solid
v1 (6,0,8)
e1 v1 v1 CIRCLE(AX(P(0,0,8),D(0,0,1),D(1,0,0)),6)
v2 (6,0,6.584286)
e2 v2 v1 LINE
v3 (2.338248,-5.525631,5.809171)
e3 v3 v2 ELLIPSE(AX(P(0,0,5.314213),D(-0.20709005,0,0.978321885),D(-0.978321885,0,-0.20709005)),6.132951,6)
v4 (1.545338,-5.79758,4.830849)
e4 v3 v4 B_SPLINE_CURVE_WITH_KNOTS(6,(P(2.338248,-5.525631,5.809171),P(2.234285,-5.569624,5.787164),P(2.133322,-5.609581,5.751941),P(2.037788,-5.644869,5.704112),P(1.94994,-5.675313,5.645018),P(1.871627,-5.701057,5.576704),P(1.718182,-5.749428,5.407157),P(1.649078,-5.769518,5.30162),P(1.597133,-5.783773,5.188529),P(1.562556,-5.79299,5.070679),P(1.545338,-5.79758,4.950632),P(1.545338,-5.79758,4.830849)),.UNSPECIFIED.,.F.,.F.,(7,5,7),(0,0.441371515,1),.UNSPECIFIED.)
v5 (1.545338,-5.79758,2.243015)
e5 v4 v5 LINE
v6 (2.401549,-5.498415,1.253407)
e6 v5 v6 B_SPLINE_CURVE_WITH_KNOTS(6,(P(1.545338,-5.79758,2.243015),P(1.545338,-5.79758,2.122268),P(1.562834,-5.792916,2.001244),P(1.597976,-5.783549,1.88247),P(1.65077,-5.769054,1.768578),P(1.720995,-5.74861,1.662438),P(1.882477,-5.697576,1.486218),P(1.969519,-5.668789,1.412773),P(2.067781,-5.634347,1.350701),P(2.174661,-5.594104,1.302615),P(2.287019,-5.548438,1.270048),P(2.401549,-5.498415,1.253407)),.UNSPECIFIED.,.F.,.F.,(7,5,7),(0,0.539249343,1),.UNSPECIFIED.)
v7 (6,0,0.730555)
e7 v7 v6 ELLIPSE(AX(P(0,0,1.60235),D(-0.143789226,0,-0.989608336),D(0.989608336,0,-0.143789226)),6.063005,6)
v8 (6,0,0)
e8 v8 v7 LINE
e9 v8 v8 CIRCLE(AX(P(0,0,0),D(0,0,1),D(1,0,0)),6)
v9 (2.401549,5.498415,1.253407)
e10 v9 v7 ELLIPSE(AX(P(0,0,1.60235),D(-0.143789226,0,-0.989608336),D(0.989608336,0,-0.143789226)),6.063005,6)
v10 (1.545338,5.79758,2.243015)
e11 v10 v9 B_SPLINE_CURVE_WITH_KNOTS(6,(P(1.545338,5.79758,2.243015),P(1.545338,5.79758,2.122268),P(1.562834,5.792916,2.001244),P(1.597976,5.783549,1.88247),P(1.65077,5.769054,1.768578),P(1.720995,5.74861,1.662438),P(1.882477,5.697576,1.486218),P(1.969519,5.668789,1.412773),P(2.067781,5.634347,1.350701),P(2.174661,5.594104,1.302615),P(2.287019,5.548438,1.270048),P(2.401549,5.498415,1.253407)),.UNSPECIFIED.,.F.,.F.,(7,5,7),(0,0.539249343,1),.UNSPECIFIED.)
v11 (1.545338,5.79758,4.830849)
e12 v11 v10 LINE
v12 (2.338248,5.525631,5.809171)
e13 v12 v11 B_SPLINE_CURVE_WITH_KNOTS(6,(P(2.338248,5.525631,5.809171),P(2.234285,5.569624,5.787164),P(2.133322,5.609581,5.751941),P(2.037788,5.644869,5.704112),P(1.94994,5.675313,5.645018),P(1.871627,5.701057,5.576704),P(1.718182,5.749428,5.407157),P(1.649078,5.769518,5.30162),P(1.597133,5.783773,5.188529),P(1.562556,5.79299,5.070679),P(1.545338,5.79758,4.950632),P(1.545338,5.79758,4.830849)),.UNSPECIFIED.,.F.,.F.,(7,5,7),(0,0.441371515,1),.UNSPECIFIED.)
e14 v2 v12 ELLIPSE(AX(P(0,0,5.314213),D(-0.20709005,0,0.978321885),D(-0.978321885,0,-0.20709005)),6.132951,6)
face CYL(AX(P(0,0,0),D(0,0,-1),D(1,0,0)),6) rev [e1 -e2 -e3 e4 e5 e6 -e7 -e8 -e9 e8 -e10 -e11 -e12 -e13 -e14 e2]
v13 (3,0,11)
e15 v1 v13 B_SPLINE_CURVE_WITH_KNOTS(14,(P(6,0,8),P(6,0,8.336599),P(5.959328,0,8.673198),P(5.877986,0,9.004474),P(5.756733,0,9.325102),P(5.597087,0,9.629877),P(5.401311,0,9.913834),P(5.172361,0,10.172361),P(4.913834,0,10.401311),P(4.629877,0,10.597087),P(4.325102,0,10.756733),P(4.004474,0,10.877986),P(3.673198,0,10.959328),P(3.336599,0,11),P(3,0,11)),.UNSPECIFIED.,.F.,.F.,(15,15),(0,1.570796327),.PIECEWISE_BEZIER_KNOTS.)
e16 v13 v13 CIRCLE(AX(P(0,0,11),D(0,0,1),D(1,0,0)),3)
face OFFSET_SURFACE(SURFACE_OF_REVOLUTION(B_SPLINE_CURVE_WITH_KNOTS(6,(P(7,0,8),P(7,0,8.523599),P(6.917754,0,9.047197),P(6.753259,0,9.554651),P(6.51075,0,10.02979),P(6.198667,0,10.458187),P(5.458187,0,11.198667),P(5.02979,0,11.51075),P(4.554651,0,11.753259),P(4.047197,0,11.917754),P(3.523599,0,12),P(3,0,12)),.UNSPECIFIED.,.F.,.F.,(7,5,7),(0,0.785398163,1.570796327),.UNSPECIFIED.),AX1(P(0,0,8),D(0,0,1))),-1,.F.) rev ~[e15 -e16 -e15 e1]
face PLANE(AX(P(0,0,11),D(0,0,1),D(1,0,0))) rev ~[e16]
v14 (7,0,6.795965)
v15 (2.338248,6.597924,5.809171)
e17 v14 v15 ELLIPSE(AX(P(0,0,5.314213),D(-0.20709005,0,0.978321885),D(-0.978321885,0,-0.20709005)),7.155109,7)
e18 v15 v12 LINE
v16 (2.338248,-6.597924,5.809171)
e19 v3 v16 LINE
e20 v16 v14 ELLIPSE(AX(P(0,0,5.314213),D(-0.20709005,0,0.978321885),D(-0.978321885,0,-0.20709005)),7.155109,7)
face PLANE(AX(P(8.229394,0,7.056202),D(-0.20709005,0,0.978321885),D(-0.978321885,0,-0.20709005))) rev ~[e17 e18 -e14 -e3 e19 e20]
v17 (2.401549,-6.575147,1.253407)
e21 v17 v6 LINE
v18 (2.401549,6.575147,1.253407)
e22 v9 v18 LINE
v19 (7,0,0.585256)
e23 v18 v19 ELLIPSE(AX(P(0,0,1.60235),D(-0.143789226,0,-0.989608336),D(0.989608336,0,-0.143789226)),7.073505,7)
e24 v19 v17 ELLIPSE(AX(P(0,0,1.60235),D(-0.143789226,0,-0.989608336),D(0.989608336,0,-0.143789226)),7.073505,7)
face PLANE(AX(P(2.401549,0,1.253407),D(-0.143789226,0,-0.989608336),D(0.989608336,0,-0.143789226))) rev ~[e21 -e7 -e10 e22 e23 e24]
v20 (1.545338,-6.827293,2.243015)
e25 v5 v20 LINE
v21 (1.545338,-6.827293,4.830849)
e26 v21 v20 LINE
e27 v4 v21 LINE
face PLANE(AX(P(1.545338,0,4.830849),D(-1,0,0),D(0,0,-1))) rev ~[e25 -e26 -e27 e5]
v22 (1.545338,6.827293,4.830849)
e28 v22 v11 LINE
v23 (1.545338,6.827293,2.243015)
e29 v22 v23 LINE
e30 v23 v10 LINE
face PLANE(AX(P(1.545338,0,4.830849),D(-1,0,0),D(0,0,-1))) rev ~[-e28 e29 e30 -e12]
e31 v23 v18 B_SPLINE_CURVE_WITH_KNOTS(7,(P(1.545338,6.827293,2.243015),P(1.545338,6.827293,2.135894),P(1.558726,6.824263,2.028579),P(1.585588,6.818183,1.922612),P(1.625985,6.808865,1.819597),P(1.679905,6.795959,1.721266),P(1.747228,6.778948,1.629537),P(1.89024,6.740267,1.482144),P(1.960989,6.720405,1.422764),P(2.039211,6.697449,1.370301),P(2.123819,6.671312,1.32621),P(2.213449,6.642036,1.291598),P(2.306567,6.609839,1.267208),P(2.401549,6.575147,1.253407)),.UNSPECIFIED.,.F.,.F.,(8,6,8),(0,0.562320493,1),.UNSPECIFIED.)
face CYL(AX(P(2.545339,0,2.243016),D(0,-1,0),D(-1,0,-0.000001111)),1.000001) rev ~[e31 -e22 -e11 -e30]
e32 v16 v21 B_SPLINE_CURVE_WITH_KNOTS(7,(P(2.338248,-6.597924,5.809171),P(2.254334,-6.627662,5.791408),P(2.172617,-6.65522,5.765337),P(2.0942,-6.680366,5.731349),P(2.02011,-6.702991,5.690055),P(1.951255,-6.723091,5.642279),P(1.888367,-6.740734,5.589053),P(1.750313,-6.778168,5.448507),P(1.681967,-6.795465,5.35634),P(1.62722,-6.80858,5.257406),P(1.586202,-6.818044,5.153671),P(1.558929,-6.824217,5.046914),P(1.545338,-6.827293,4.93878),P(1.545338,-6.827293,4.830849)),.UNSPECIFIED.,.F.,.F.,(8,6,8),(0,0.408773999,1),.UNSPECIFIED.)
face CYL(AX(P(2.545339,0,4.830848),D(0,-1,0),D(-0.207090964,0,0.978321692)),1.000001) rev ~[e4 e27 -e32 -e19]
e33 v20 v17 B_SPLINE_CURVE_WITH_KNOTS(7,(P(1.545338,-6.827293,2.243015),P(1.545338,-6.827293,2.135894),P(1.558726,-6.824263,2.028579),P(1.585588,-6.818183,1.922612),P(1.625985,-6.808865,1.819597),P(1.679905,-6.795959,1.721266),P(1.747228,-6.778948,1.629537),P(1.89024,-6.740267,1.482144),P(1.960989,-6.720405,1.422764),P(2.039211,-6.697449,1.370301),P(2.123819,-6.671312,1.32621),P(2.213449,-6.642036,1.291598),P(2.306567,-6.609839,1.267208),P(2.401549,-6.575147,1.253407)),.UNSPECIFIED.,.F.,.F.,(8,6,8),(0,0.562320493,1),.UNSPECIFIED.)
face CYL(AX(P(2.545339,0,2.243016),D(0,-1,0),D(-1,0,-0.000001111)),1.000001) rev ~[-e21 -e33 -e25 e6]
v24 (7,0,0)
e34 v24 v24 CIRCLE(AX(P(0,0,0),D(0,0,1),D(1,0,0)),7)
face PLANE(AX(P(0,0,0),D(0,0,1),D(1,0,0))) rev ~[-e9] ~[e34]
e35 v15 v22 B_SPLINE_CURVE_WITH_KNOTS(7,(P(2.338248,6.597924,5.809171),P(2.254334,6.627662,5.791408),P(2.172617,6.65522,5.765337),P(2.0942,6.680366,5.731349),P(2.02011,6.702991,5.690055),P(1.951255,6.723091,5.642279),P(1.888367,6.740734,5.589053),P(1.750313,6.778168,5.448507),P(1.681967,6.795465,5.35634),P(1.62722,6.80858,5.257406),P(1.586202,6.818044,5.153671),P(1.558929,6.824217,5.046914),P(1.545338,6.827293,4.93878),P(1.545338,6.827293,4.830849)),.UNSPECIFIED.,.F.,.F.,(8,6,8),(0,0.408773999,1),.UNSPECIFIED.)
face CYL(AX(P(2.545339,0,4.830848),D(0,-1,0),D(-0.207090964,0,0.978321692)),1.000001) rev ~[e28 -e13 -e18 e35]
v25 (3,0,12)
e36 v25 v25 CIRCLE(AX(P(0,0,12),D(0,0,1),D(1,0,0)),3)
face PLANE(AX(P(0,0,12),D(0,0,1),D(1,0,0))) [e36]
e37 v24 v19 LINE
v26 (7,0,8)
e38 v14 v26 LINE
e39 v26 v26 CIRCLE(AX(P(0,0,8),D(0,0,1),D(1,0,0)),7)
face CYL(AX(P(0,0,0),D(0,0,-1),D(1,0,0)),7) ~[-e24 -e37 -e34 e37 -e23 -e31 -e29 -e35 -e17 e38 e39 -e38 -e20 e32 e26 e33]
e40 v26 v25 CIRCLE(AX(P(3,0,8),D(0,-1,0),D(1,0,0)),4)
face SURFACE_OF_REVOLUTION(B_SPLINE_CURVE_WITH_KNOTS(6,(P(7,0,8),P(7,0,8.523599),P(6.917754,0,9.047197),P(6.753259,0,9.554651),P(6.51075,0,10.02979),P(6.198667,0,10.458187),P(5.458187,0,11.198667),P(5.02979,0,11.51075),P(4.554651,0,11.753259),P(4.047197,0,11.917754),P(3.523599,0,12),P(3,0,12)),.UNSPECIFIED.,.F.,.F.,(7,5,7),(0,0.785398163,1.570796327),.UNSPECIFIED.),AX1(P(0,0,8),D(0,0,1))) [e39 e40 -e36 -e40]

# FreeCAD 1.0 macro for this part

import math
import FreeCAD as App
import Part
import Sketcher
from FreeCAD import Vector


def edges_at(feature, points):
    """Names of the edges that pass closest to the given points."""
    edges = feature.Shape.Edges
    near = lambda p: min(range(len(edges)), key=lambda i: edges[i].distToShape(Part.Vertex(*p))[0])
    return sorted({f"Edge{near(p) + 1}" for p in points})


def faces_at(feature, points):
    """Names of the faces that lie closest to the given points."""
    faces = feature.Shape.Faces
    near = lambda p: min(range(len(faces)), key=lambda i: faces[i].distToShape(Part.Vertex(*p))[0])
    return sorted({f"Face{near(p) + 1}" for p in points})

doc = App.newDocument("Part")
body = doc.addObject("PartDesign::Body", "Body")

# Sketch on XY plane
sketch1 = body.newObject("Sketcher::SketchObject", "Sketch")
sketch1.AttachmentSupport = (doc.getObject("XY_Plane"), [""])
sketch1.MapMode = "FlatFace"
sketch1.addGeometry(Part.Circle(Vector(0, 0, 0), Vector(0, 0, 1), 7), False)
sketch1.addConstraint(Sketcher.Constraint("Coincident", 0, 3, -1, 1))
sketch1.addConstraint(Sketcher.Constraint("Diameter", 0, 14.0))
pad1 = body.newObject("PartDesign::Pad", "Pad")
pad1.Profile = sketch1
pad1.Length = 12
doc.recompute()

fillet = body.newObject("PartDesign::Fillet", "Fillet")
fillet.Base = (pad1, edges_at(pad1, [(-7, 0, 12)]))
fillet.Radius = 4
doc.recompute()

thickness = body.newObject("PartDesign::Thickness", "Thickness")
thickness.Base = (fillet, faces_at(fillet, [(0, 0, 0)]))
thickness.Value = 1
thickness.Reversed = True
thickness.Join = "Arc"

# Sketch on XZ plane
sketch2 = body.newObject("Sketcher::SketchObject", "Sketch001")
sketch2.AttachmentSupport = (doc.getObject("XZ_Plane"), [""])
sketch2.MapMode = "FlatFace"
sketch2.addGeometry(Part.LineSegment(Vector(8.12, 6.7, 0), Vector(8.23, 7.06, 0)), False)
sketch2.addGeometry(Part.LineSegment(Vector(8.23, 7.06, 0), Vector(2.34, 5.81, 0)), False)
sketch2.addGeometry(Part.ArcOfCircle(Part.Circle(Vector(2.55, 4.83, 0), Vector(0, 0, 1), 1), math.radians(102), math.radians(180)), False)
sketch2.addGeometry(Part.LineSegment(Vector(1.55, 4.83, 0), Vector(1.55, 2.24, 0)), False)
sketch2.addGeometry(Part.ArcOfCircle(Part.Circle(Vector(2.55, 2.24, 0), Vector(0, 0, 1), 1), math.radians(-180), math.radians(-98)), False)
sketch2.addGeometry(Part.LineSegment(Vector(2.4, 1.25, 0), Vector(7.23, 0.55, 0)), False)
sketch2.addGeometry(Part.LineSegment(Vector(7.23, 0.55, 0), Vector(8.12, 6.7, 0)), False)
sketch2.addConstraint(Sketcher.Constraint("Coincident", 0, 2, 1, 1))
sketch2.addConstraint(Sketcher.Constraint("Tangent", 1, 2, 2, 1))
sketch2.addConstraint(Sketcher.Constraint("Tangent", 2, 2, 3, 1))
sketch2.addConstraint(Sketcher.Constraint("Tangent", 3, 2, 4, 1))
sketch2.addConstraint(Sketcher.Constraint("Tangent", 4, 2, 5, 1))
sketch2.addConstraint(Sketcher.Constraint("Coincident", 5, 2, 6, 1))
sketch2.addConstraint(Sketcher.Constraint("Coincident", 6, 2, 0, 1))
sketch2.addConstraint(Sketcher.Constraint("Vertical", 3))
sketch2.addConstraint(Sketcher.Constraint("Equal", 2, 4))
sketch2.addConstraint(Sketcher.Constraint("Perpendicular", 5, 6))
sketch2.addConstraint(Sketcher.Constraint("Radius", 2, 1.000001))
sketch2.addConstraint(Sketcher.Constraint("DistanceY", -1, 1, 6, 2, 6.698599))
sketch2.addConstraint(Sketcher.Constraint("DistanceX", 1, 2, 4, 2, 0.063301))
sketch2.addConstraint(Sketcher.Constraint("Distance", 5, 4.876909))
sketch2.addConstraint(Sketcher.Constraint("Distance", 6, 6.210981))
sketch2.addConstraint(Sketcher.Constraint("DistanceY", 3, 2, 3, 1, 2.587834))
sketch2.addConstraint(Sketcher.Constraint("DistanceX", -1, 1, 2, 3, 2.545339))
sketch2.addConstraint(Sketcher.Constraint("DistanceY", -1, 1, 2, 3, 4.830848))
sketch2.addConstraint(Sketcher.Constraint("DistanceY", 1, 2, 0, 2, 1.247031))
pocket1 = body.newObject("PartDesign::Pocket", "Pocket")
pocket1.Profile = sketch2
pocket1.Length = 25.4
pocket1.Midplane = True

doc.recompute()
